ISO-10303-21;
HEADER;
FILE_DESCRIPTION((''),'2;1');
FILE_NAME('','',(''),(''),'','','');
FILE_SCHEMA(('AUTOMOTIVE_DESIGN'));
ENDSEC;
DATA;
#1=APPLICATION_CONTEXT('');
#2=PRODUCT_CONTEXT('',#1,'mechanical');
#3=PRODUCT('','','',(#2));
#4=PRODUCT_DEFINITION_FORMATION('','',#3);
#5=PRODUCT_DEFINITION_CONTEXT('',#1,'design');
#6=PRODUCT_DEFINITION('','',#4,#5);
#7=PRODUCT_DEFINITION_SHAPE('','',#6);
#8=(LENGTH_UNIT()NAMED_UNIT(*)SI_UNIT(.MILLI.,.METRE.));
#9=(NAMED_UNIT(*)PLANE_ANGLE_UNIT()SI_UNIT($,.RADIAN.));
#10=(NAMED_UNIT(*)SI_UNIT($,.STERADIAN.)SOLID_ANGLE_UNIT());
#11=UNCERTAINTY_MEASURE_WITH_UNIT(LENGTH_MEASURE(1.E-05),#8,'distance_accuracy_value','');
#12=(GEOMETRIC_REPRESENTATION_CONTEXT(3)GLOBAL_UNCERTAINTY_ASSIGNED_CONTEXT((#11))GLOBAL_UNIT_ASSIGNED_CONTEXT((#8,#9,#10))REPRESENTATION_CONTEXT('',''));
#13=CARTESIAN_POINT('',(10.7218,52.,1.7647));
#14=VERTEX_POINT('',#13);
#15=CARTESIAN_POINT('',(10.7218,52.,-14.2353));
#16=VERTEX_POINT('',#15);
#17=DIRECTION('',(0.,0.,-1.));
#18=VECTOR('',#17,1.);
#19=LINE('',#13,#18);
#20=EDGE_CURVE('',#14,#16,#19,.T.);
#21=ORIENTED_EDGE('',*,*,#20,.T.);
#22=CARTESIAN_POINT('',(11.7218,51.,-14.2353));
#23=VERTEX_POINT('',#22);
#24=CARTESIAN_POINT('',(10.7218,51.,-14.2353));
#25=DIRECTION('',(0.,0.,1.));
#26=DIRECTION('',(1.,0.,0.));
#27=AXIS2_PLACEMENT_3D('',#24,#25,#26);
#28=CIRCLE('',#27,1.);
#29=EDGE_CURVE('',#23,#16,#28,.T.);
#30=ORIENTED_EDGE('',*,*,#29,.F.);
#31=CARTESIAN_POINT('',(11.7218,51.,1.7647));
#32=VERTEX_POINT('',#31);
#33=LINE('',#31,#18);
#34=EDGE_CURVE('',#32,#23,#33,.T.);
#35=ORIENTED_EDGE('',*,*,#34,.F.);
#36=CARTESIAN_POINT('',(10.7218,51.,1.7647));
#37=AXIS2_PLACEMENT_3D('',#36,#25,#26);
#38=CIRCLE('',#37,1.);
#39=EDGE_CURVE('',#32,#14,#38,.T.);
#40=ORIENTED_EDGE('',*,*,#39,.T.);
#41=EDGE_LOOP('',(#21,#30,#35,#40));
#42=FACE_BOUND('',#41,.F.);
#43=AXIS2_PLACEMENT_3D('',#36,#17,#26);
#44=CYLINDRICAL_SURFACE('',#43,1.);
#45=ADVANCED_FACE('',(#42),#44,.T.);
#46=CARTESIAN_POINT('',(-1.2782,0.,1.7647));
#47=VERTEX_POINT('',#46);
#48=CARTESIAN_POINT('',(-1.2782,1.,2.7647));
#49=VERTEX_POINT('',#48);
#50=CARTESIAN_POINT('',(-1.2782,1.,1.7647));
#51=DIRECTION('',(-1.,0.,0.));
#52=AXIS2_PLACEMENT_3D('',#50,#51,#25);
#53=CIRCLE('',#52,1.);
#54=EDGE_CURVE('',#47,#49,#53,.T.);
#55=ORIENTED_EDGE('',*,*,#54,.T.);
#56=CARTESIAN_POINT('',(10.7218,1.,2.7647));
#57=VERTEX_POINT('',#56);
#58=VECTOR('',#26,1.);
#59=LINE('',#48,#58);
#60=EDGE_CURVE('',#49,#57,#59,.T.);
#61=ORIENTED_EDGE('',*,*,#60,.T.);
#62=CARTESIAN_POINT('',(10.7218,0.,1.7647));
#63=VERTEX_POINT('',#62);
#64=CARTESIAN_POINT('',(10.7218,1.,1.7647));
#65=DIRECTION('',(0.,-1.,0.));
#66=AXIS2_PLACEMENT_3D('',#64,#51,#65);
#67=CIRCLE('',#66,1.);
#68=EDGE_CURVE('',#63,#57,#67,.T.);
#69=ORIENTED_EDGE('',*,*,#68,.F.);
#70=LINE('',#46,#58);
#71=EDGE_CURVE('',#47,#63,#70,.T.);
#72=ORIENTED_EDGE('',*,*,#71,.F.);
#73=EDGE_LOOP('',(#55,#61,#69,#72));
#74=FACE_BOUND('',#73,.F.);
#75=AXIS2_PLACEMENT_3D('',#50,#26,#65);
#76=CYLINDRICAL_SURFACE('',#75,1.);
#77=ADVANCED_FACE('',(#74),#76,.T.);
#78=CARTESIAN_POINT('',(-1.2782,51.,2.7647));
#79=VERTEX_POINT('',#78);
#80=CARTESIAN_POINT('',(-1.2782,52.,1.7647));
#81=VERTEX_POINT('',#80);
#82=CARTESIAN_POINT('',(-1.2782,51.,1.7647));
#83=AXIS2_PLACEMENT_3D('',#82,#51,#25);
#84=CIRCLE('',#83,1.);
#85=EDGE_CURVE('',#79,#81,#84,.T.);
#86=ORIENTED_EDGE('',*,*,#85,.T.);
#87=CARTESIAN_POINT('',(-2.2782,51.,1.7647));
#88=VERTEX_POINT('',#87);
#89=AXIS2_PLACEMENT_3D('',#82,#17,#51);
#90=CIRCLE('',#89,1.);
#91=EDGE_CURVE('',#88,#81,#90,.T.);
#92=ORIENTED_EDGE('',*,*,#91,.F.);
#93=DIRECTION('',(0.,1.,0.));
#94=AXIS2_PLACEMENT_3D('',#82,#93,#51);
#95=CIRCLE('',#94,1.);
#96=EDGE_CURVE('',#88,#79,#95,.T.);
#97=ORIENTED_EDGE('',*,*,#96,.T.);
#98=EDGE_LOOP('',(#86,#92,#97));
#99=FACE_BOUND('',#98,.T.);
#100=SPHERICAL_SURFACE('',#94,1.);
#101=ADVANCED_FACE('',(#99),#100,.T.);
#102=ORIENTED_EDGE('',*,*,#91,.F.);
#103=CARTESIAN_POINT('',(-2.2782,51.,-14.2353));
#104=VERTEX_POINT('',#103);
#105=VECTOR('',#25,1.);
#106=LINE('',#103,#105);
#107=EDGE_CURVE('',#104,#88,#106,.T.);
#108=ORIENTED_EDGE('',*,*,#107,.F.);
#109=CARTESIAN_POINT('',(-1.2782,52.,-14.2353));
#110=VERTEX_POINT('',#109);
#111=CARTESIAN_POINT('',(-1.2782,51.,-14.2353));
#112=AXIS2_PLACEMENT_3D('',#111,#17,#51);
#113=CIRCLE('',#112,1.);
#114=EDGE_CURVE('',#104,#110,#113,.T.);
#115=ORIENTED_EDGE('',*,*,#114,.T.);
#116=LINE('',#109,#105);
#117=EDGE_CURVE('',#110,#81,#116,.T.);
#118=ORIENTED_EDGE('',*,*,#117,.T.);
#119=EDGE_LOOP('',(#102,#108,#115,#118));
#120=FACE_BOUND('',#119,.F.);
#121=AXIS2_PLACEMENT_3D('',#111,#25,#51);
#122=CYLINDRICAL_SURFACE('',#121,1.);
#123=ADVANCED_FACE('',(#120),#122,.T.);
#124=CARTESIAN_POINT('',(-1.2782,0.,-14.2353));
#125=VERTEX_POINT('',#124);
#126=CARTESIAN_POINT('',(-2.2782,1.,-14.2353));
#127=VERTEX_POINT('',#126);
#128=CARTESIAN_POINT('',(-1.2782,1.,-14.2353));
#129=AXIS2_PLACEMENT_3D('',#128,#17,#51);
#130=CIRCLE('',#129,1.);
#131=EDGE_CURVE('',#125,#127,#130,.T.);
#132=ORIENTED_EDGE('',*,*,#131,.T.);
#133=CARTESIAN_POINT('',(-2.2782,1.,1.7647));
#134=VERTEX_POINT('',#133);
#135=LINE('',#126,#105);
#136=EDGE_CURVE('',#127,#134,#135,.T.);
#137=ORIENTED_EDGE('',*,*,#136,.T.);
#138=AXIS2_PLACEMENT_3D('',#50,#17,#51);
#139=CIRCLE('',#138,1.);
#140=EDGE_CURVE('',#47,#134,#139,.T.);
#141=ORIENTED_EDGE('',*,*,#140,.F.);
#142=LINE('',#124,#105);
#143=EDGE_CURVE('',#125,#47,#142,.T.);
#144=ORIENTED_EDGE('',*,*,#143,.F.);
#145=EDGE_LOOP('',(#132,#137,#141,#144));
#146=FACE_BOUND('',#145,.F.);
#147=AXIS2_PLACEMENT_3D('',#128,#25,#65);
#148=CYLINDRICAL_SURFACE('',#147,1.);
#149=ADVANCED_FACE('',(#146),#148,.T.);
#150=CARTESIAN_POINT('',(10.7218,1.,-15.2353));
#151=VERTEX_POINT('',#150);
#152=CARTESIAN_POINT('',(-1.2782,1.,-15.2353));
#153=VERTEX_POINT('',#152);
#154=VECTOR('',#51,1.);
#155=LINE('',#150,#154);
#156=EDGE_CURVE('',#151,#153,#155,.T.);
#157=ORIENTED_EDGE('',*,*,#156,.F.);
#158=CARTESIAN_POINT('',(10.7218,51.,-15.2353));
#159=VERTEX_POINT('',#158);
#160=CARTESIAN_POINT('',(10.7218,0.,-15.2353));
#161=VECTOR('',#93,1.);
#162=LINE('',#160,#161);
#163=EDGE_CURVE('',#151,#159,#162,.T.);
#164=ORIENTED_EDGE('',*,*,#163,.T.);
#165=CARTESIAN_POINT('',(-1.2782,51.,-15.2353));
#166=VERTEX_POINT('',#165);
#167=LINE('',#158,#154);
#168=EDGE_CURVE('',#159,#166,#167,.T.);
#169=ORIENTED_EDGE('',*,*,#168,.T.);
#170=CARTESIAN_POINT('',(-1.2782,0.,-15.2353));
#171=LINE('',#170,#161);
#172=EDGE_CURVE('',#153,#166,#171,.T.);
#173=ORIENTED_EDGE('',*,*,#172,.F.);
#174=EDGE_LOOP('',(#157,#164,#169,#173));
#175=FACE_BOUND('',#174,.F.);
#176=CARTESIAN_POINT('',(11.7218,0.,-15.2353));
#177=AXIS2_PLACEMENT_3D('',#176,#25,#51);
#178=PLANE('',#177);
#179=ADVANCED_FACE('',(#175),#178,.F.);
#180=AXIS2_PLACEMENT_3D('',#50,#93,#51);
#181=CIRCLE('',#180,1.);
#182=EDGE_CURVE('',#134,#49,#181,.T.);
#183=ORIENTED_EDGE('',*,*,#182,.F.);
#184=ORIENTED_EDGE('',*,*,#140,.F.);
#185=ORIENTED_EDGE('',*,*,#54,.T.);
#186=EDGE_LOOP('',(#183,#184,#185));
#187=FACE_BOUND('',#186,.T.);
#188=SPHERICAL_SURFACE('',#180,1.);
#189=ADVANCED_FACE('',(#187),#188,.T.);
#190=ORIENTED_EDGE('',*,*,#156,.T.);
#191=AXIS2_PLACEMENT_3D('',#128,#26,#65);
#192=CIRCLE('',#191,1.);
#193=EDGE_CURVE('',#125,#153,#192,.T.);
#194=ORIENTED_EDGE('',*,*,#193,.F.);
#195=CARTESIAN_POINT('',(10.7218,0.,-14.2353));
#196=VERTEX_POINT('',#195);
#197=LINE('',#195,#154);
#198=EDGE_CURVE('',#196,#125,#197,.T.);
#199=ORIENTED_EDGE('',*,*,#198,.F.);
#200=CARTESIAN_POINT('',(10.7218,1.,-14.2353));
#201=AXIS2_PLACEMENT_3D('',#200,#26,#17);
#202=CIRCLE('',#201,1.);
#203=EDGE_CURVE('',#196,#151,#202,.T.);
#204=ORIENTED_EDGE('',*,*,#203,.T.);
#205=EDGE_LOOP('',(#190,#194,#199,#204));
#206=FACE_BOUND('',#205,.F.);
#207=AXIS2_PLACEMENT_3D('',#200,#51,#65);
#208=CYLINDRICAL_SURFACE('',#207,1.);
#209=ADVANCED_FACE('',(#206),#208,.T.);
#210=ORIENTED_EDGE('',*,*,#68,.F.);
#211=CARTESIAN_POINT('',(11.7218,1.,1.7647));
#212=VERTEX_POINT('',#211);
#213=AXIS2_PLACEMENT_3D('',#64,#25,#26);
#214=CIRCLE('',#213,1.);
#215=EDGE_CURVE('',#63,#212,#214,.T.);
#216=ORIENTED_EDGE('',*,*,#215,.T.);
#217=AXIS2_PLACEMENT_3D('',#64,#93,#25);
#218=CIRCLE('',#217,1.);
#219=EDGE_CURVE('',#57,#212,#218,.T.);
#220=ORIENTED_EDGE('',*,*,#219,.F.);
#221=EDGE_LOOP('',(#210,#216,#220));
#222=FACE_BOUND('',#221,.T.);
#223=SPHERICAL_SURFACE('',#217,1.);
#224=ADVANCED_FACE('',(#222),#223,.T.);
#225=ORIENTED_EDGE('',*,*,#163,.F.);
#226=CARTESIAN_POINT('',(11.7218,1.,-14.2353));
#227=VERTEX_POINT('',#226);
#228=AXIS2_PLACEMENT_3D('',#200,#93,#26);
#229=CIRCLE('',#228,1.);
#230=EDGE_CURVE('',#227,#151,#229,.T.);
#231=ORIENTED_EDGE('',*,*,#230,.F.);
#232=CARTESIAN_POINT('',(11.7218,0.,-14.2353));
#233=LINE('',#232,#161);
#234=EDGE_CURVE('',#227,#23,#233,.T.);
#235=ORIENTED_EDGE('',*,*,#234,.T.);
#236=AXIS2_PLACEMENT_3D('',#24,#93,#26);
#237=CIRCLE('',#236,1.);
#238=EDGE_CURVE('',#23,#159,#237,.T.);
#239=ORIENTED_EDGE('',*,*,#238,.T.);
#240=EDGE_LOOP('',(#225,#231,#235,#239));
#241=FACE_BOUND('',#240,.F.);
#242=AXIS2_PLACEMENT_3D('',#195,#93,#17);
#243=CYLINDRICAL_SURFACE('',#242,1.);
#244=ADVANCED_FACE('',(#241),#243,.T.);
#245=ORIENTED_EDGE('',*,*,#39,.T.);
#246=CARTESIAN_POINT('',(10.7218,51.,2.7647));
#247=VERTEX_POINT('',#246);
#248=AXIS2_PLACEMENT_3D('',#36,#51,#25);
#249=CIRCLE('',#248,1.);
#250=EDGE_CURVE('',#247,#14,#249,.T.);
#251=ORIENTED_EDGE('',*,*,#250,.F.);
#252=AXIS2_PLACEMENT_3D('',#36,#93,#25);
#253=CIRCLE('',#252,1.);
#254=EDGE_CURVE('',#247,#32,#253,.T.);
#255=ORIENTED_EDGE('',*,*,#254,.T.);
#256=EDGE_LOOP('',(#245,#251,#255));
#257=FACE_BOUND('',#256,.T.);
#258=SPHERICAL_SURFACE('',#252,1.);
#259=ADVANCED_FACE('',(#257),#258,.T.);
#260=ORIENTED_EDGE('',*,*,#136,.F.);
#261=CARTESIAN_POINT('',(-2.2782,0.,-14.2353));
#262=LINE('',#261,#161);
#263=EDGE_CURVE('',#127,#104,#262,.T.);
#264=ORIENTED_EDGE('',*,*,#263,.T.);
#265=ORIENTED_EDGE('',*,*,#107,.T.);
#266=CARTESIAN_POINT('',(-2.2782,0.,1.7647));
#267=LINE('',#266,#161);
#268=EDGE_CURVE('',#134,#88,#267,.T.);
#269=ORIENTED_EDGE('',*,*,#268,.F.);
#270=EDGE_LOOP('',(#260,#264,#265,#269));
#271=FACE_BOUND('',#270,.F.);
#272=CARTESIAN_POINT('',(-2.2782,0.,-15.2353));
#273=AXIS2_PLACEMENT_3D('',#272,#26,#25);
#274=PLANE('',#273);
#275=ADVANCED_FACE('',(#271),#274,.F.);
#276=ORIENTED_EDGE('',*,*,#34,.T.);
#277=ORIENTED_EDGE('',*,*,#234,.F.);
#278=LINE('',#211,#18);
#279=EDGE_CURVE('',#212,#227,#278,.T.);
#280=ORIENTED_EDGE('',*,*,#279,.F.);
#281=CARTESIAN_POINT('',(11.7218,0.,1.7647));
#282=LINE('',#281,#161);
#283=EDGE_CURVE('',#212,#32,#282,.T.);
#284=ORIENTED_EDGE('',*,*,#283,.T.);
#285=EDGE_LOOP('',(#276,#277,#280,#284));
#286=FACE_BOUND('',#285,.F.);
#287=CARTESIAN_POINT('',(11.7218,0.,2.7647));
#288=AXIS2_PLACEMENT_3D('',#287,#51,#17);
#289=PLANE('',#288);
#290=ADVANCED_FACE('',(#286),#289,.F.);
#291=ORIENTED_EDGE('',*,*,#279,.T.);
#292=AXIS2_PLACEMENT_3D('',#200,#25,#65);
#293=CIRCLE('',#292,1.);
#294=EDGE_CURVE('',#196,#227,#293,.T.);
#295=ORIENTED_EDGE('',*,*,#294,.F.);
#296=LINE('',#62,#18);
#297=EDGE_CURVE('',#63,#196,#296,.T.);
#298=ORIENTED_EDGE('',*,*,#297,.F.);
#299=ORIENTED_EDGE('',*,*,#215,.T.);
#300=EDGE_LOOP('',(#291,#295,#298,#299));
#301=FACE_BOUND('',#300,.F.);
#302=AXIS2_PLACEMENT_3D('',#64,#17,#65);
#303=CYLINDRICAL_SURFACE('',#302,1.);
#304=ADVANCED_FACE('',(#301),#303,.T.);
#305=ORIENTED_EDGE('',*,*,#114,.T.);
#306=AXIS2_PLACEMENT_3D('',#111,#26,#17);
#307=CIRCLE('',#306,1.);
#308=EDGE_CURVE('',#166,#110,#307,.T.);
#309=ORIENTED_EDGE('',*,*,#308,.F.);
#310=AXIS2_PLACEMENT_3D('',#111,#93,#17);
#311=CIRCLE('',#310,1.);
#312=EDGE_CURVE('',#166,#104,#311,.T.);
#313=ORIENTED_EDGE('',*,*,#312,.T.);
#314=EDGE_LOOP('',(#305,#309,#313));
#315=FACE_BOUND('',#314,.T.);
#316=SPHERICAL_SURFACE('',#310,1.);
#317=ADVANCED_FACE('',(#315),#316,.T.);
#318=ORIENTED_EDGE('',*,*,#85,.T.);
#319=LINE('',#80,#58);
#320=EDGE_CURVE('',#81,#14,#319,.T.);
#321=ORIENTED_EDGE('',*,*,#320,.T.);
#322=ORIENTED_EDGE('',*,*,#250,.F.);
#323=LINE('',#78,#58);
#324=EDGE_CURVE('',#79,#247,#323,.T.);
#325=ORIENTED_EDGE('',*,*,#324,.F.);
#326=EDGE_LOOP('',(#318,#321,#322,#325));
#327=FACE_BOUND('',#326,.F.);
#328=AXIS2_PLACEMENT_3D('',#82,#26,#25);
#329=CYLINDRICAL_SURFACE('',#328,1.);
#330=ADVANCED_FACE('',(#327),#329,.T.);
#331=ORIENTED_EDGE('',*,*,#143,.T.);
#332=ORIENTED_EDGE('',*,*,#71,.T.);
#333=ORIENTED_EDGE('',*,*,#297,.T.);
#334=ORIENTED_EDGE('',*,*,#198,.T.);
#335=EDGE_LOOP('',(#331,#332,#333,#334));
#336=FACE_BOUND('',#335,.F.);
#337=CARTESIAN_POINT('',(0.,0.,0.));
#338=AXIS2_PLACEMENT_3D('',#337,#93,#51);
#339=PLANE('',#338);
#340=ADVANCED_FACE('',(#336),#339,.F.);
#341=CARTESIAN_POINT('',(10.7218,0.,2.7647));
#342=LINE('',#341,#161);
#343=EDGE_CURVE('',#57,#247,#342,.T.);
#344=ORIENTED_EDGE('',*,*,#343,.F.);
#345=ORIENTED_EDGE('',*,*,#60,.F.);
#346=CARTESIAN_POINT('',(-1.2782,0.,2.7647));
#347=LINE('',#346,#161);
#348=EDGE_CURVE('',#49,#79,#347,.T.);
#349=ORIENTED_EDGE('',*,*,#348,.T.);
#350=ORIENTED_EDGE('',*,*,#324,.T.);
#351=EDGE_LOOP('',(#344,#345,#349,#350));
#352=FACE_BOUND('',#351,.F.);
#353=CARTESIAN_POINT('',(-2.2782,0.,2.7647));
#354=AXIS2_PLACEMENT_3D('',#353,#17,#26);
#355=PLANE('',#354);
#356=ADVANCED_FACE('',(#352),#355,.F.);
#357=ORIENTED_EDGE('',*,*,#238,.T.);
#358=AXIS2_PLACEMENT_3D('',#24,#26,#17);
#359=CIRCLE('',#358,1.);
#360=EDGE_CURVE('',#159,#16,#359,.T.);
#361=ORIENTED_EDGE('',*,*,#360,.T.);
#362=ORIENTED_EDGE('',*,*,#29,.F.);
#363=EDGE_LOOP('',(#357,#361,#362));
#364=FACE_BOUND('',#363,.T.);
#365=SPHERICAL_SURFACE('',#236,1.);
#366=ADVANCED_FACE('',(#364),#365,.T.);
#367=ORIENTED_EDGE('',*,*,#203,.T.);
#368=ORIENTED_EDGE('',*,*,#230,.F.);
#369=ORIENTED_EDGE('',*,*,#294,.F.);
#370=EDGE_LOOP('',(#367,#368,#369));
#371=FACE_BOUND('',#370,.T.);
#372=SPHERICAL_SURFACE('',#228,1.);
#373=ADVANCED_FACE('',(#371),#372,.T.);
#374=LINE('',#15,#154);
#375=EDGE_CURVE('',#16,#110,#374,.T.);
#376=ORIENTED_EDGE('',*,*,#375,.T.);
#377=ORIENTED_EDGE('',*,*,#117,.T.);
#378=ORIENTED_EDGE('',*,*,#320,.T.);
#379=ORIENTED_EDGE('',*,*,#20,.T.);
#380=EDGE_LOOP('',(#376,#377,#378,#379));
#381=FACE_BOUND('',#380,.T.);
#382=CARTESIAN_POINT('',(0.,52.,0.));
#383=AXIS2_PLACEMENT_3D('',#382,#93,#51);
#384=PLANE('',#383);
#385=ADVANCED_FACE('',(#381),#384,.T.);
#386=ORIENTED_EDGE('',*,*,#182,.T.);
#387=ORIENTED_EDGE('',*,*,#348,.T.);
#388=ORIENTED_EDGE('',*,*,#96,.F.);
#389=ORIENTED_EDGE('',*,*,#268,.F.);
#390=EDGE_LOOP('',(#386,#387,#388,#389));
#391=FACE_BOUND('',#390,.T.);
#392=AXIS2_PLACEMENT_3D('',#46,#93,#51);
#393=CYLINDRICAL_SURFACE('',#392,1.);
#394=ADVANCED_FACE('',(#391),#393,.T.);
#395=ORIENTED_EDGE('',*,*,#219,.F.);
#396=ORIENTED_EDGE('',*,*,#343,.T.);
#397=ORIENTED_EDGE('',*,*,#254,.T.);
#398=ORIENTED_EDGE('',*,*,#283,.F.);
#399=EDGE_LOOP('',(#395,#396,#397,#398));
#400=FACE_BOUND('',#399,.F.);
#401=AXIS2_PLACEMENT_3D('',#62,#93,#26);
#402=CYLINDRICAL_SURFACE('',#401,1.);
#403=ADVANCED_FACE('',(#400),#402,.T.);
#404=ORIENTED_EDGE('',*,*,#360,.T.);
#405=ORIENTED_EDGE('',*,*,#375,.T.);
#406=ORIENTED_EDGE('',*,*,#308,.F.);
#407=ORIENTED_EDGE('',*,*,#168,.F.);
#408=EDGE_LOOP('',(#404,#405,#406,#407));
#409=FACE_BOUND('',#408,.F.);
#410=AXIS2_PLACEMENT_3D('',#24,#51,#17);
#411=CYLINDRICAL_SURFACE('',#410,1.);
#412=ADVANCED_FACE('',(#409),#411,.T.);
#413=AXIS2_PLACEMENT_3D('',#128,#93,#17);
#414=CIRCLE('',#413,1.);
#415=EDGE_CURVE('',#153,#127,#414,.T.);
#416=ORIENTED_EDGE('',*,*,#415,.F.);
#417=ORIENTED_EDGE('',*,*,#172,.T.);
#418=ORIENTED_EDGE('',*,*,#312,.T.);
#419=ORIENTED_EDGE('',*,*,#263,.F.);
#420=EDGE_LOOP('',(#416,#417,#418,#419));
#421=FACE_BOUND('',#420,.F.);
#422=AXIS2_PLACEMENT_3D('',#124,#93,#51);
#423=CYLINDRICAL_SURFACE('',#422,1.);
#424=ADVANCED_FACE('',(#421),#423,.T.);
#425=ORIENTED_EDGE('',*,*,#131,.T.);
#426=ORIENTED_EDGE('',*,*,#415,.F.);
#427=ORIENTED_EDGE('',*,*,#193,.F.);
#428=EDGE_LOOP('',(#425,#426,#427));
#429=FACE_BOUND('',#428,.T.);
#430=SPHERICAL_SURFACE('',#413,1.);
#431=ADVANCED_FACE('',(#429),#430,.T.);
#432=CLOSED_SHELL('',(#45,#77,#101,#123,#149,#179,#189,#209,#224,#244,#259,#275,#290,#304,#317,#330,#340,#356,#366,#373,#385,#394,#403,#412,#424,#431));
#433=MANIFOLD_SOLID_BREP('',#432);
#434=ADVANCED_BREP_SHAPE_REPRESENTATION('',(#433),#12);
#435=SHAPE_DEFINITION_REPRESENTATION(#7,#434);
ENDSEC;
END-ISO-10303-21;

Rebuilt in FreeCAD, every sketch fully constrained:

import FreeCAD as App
import Part
import Sketcher


def edges_at(feature, points):
    """Names of the edges that pass closest to the given points."""
    edges = feature.Shape.Edges
    near = lambda p: min(range(len(edges)), key=lambda i: edges[i].distToShape(Part.Vertex(*p))[0])
    return sorted({f"Edge{near(p) + 1}" for p in points})


def add_polygon(sketch, points):
    """Adds a closed chain of lines whose ends are joined by coincident constraints."""
    first, n = sketch.GeometryCount, len(points)
    for a, b in zip(points, points[1:] + points[:1]):
        sketch.addGeometry(Part.LineSegment(App.Vector(*a, 0), App.Vector(*b, 0)), False)
    for i in range(n):
        sketch.addConstraint(Sketcher.Constraint("Coincident", first + i, 2, first + (i + 1) % n, 1))

doc = App.newDocument("Part")
params = doc.addObject("Spreadsheet::Sheet", "Params")
for row, (alias, value) in enumerate([
    ("sketch1_width", "14 mm"),
    ("sketch1_height", "18 mm"),
    ("pad1_length", "52 mm"),
    ("fillet_radius", "1 mm"),
    ("fillet2_radius", "1 mm"),
], start=1):
    params.set(f"A{row}", alias)
    params.set(f"B{row}", "=" + value)
    params.setAlias(f"B{row}", alias)

body = doc.addObject("PartDesign::Body", "Body")

# Sketch on XZ plane
sketch1 = body.newObject("Sketcher::SketchObject", "Sketch")
sketch1.AttachmentSupport = (doc.getObject("XZ_Plane"), [""])
sketch1.MapMode = "FlatFace"
add_polygon(sketch1, [(-2, -15), (-2, 3), (12, 3), (12, -15)])  # lines 0-3
sketch1.addConstraint(Sketcher.Constraint("Vertical", 0))
sketch1.addConstraint(Sketcher.Constraint("Horizontal", 1))
sketch1.addConstraint(Sketcher.Constraint("Vertical", 2))
sketch1.addConstraint(Sketcher.Constraint("Horizontal", 3))
sketch1.addConstraint(Sketcher.Constraint("DistanceX", 1, 1, 1, 2, 14.0))
sketch1.addConstraint(Sketcher.Constraint("DistanceY", 0, 1, 0, 2, 18.0))
sketch1.addConstraint(Sketcher.Constraint("DistanceX", 0, 2, -1, 1, 2.2782))
sketch1.addConstraint(Sketcher.Constraint("DistanceY", -1, 1, 0, 2, 2.7647))
sketch1.setExpression("Constraints[8]", "Params.sketch1_width")
sketch1.setExpression("Constraints[9]", "Params.sketch1_height")
pad1 = body.newObject("PartDesign::Pad", "Pad")
pad1.Profile = sketch1
pad1.setExpression("Length", "Params.pad1_length")
pad1.Reversed = True
doc.recompute()

fillet = body.newObject("PartDesign::Fillet", "Fillet")
fillet.Base = (pad1, edges_at(pad1, [
    (-2.278, 26, -15.235),
    (11.722, 26, -15.235),
    (-2.278, 26, 2.765),
    (11.722, 26, 2.765),
]))
fillet.setExpression("Radius", "Params.fillet_radius")
doc.recompute()

fillet2 = body.newObject("PartDesign::Fillet", "Fillet001")
fillet2.Base = (fillet, edges_at(fillet, [
    (-1.985, 0, 2.472),
    (4.722, 0, 2.765),
    (11.429, 0, 2.472),
    (11.722, 0, -6.235),
    (11.429, 0, -14.942),
    (4.722, 0, -15.235),
    (-1.985, 0, -14.942),
    (-2.278, 0, -6.235),
    (-1.985, 52, 2.472),
    (4.722, 52, 2.765),
    (11.429, 52, 2.472),
    (11.722, 52, -6.235),
    (11.429, 52, -14.942),
    (4.722, 52, -15.235),
    (-1.985, 52, -14.942),
    (-2.278, 52, -6.235),
]))
fillet2.setExpression("Radius", "Params.fillet2_radius")

doc.recompute()
